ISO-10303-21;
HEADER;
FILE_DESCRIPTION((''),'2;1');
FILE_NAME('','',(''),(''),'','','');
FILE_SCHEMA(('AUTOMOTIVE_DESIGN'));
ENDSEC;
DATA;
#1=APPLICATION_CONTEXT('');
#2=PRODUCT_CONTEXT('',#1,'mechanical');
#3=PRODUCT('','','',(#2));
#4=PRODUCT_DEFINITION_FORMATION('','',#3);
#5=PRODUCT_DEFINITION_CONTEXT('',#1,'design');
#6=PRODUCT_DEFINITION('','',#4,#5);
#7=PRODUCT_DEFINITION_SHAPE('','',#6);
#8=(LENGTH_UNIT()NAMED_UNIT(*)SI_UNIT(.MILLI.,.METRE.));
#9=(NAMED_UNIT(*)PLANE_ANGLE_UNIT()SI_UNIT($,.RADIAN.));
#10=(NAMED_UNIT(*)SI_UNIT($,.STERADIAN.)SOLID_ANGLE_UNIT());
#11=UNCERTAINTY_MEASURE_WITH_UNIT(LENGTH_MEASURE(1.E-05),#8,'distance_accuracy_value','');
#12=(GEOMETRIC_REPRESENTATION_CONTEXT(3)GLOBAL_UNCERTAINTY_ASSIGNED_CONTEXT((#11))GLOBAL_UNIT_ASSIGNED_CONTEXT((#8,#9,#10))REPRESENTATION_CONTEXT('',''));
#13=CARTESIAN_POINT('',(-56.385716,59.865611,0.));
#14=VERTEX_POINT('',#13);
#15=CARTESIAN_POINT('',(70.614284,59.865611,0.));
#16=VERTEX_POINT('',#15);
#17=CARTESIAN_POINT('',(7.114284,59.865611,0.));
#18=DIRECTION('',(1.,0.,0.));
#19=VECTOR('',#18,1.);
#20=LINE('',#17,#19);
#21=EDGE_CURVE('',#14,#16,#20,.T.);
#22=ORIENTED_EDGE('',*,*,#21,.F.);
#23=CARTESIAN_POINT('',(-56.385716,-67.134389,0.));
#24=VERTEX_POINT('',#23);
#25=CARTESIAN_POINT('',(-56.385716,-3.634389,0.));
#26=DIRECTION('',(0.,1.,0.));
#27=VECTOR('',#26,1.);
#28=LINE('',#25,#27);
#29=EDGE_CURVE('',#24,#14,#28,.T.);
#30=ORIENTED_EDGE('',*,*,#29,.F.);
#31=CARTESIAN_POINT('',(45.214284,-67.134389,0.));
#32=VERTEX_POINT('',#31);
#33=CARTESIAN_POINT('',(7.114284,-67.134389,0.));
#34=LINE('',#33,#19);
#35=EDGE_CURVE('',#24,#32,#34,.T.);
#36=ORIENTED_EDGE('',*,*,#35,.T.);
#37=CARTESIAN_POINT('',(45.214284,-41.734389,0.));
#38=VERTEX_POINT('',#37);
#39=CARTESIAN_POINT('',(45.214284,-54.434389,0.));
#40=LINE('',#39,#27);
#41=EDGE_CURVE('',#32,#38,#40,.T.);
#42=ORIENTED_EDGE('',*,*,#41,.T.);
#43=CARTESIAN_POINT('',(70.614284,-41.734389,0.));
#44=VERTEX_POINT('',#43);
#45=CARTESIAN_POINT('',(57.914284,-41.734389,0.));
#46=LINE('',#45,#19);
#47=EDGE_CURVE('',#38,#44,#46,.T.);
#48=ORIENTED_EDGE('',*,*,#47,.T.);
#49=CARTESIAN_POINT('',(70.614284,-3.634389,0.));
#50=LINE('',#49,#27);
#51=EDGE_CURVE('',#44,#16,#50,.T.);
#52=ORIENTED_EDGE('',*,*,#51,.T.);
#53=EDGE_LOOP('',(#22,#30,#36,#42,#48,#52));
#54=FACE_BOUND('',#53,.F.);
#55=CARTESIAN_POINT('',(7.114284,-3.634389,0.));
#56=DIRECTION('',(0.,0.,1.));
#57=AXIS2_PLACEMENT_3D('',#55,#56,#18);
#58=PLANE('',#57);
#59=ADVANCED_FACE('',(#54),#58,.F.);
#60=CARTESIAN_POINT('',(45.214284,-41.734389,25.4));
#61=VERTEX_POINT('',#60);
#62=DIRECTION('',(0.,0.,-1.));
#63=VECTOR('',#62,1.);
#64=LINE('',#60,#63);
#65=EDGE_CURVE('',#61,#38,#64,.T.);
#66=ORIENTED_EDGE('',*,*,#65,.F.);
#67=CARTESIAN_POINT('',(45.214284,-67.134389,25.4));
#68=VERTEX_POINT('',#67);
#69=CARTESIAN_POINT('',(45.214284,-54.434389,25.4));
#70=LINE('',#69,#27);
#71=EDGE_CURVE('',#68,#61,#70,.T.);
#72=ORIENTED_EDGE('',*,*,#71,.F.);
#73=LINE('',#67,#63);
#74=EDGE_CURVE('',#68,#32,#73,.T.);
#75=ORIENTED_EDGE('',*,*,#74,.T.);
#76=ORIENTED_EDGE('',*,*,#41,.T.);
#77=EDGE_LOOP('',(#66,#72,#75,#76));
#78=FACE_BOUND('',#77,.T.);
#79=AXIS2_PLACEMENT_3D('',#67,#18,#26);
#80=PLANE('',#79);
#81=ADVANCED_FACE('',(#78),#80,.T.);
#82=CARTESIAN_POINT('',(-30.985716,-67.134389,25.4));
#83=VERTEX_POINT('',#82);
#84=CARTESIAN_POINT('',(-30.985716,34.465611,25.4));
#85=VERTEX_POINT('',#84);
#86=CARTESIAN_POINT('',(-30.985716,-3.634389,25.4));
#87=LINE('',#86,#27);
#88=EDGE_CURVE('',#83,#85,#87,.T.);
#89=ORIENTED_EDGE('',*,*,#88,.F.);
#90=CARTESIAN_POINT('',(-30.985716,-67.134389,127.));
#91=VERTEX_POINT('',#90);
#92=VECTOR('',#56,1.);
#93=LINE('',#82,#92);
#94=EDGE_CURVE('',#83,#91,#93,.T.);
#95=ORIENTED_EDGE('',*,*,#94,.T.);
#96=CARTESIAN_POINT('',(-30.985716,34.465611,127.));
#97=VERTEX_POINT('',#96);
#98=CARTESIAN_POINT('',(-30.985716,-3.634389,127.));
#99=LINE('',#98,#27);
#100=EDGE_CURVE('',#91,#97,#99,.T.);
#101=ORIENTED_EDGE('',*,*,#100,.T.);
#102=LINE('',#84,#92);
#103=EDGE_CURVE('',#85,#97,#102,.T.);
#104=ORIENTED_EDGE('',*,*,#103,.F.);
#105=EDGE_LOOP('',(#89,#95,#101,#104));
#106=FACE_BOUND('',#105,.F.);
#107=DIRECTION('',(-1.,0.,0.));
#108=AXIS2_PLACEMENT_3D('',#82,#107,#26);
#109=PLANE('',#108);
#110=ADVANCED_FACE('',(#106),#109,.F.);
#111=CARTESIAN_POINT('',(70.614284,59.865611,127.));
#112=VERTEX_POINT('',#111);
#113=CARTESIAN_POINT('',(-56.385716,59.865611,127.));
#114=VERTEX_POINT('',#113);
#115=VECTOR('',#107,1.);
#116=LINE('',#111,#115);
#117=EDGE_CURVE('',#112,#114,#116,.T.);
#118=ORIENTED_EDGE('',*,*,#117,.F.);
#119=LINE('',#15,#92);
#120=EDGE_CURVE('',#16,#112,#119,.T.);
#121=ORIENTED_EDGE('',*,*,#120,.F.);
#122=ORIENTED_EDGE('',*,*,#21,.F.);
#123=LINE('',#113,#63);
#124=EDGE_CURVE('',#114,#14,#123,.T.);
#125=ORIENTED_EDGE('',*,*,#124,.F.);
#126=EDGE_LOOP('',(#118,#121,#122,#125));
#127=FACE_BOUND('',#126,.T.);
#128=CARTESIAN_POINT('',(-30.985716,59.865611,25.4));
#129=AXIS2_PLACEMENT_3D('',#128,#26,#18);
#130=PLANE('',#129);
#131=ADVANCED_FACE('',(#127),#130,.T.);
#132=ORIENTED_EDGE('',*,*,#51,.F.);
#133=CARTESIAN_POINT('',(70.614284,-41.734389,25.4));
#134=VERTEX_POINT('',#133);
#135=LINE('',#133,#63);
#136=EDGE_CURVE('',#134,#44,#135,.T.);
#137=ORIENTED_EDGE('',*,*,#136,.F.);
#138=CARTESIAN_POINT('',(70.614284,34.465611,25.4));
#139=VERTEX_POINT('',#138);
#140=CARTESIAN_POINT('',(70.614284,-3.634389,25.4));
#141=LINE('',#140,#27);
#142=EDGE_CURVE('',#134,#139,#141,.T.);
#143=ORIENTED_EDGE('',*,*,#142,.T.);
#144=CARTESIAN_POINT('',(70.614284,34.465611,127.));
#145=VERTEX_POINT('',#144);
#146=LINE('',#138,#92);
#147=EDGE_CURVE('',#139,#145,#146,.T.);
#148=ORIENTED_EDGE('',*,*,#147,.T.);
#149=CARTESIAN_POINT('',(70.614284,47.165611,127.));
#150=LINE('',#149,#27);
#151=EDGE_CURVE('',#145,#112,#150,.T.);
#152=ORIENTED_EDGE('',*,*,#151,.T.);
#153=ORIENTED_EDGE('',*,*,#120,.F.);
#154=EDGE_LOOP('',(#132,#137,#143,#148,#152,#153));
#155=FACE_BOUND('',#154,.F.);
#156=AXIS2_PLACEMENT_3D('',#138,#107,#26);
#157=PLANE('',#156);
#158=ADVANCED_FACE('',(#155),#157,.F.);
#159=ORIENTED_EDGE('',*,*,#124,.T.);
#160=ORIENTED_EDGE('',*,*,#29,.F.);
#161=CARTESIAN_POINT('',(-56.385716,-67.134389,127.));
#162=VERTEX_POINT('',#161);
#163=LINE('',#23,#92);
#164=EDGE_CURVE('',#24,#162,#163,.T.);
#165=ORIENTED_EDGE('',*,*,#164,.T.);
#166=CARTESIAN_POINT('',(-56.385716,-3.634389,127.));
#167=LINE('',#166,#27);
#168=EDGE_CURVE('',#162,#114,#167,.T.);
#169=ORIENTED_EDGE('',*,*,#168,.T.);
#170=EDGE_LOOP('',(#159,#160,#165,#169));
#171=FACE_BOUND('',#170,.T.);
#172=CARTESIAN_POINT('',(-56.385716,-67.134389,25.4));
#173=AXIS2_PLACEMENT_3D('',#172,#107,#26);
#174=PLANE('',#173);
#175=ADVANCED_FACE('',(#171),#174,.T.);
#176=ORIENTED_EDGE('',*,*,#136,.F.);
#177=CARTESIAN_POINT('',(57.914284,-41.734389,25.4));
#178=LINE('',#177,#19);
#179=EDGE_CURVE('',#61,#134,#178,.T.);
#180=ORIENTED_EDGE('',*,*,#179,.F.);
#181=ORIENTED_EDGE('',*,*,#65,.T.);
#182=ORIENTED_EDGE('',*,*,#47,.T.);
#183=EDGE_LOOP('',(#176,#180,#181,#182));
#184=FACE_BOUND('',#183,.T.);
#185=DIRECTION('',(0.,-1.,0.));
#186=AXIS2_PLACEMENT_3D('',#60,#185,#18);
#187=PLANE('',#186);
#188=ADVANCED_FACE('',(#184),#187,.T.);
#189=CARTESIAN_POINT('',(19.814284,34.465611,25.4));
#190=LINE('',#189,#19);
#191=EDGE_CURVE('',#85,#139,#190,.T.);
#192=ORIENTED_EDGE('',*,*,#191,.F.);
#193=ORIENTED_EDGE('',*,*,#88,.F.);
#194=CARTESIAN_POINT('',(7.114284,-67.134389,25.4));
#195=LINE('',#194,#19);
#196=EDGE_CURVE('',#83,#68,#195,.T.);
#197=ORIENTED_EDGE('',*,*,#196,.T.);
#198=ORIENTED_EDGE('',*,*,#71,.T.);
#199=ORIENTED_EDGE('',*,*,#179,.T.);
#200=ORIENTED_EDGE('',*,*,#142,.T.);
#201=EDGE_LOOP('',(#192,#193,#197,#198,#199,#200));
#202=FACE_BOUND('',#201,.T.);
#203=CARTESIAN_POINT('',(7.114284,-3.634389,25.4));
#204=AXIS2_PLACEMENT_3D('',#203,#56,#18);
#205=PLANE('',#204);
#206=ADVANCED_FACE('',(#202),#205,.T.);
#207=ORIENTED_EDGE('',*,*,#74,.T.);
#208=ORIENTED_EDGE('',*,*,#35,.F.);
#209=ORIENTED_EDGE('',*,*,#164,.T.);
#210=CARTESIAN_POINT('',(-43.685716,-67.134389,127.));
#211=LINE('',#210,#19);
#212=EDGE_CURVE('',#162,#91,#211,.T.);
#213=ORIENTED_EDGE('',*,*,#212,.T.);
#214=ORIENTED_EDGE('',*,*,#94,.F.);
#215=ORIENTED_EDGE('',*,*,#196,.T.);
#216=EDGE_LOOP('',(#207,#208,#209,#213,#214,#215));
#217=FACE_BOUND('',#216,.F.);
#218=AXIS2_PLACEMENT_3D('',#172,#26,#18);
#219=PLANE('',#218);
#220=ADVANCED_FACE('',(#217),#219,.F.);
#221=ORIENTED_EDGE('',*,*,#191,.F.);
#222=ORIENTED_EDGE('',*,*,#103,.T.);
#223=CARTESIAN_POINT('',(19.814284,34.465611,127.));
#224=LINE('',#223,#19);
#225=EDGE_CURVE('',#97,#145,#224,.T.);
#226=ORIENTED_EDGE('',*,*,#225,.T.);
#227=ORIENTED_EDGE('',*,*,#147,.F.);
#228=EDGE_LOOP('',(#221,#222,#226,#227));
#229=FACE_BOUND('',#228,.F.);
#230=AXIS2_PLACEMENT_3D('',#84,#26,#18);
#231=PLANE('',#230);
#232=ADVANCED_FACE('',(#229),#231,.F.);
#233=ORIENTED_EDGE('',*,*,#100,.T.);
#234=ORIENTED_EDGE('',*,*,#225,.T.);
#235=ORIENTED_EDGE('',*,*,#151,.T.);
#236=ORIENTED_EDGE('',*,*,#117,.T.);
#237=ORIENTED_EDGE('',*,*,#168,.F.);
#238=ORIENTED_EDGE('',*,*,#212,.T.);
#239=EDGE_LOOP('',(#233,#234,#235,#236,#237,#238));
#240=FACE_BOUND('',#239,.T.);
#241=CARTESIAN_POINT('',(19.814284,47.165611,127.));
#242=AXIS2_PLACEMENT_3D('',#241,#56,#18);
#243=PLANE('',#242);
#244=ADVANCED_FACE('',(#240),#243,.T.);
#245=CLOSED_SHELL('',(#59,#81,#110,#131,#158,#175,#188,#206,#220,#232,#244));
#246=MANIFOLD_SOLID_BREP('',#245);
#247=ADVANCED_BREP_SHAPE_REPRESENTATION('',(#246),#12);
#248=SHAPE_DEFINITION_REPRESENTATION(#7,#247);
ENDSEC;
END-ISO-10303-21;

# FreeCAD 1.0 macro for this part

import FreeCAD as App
import Part
import Sketcher

V = App.Vector
Q = App.Units.Quantity


def add_polygon(sketch, points):
    """Adds a closed chain of lines whose ends are joined by coincident constraints."""
    first, n = sketch.GeometryCount, len(points)
    for a, b in zip(points, points[1:] + points[:1]):
        sketch.addGeometry(Part.LineSegment(App.Vector(*a, 0), App.Vector(*b, 0)), False)
    for i in range(n):
        sketch.addConstraint(Sketcher.Constraint("Coincident", first + i, 2, first + (i + 1) % n, 1))

doc = App.newDocument("Part")
body = doc.addObject("PartDesign::Body", "Body")

sketch1 = body.newObject("Sketcher::SketchObject", "Sketch")
sketch1.AttachmentSupport = (doc.getObject("XY_Plane"), [""])
sketch1.MapMode = "FlatFace"
add_polygon(sketch1, [(-56, 60), (-56, -67), (71, -67), (71, 60)])
sketch1.addConstraint(Sketcher.Constraint("Vertical", 0))
sketch1.addConstraint(Sketcher.Constraint("Horizontal", 1))
sketch1.addConstraint(Sketcher.Constraint("Vertical", 2))
sketch1.addConstraint(Sketcher.Constraint("Horizontal", 3))
sketch1.addConstraint(Sketcher.Constraint("Equal", 3, 0))
sketch1.addConstraint(Sketcher.Constraint("DistanceX", 1, 1, 1, 2, Q("5 in")))
sketch1.addConstraint(Sketcher.Constraint("DistanceY", 0, 2, -1, 1, 67.134389))
sketch1.addConstraint(Sketcher.Constraint("DistanceX", 0, 2, -1, 1, 56.385716))
pad1 = body.newObject("PartDesign::Pad", "Pad")
pad1.Profile = sketch1
pad1.Length = Q("1 in")

sketch2 = body.newObject("Sketcher::SketchObject", "Sketch001")
sketch2.AttachmentSupport = (doc.getObject("XY_Plane"), [""])
sketch2.MapMode = "FlatFace"
sketch2.AttachmentOffset = App.Placement(V(0, 0, 1 * 25.4), App.Rotation())
add_polygon(sketch2, [(-56, 60), (-56, -67), (-31, -67), (-31, 60)])
sketch2.addConstraint(Sketcher.Constraint("Vertical", 0))
sketch2.addConstraint(Sketcher.Constraint("Horizontal", 1))
sketch2.addConstraint(Sketcher.Constraint("Vertical", 2))
sketch2.addConstraint(Sketcher.Constraint("Horizontal", 3))
sketch2.addConstraint(Sketcher.Constraint("DistanceX", 1, 1, 1, 2, Q("1 in")))
sketch2.addConstraint(Sketcher.Constraint("DistanceY", 0, 2, 0, 1, Q("5 in")))
sketch2.addConstraint(Sketcher.Constraint("DistanceY", 0, 2, -1, 1, 67.134389))
sketch2.addConstraint(Sketcher.Constraint("DistanceX", 0, 2, -1, 1, 56.385716))
pad2 = body.newObject("PartDesign::Pad", "Pad001")
pad2.Profile = sketch2
pad2.Length = Q("4 in")

sketch3 = body.newObject("Sketcher::SketchObject", "Sketch002")
sketch3.AttachmentSupport = (doc.getObject("XY_Plane"), [""])
sketch3.MapMode = "FlatFace"
sketch3.AttachmentOffset = App.Placement(V(0, 0, 1 * 25.4), App.Rotation())
add_polygon(sketch3, [(-31, 60), (-31, 34), (71, 34), (71, 60)])
sketch3.addConstraint(Sketcher.Constraint("Vertical", 0))
sketch3.addConstraint(Sketcher.Constraint("Horizontal", 1))
sketch3.addConstraint(Sketcher.Constraint("Vertical", 2))
sketch3.addConstraint(Sketcher.Constraint("Horizontal", 3))
sketch3.addConstraint(Sketcher.Constraint("DistanceX", 1, 1, 1, 2, Q("4 in")))
sketch3.addConstraint(Sketcher.Constraint("DistanceY", 0, 2, 0, 1, Q("1 in")))
sketch3.addConstraint(Sketcher.Constraint("DistanceY", -1, 1, 0, 2, 34.465611))
sketch3.addConstraint(Sketcher.Constraint("DistanceX", 0, 2, -1, 1, 30.985716))
pad3 = body.newObject("PartDesign::Pad", "Pad002")
pad3.Profile = sketch3
pad3.Length = Q("4 in")

sketch4 = body.newObject("Sketcher::SketchObject", "Sketch003")
sketch4.AttachmentSupport = (doc.getObject("XY_Plane"), [""])
sketch4.MapMode = "FlatFace"
sketch4.AttachmentOffset = App.Placement(V(0, 0, 1 * 25.4), App.Rotation())
add_polygon(sketch4, [(45, -42), (45, -67), (71, -67), (71, -42)])
sketch4.addConstraint(Sketcher.Constraint("Vertical", 0))
sketch4.addConstraint(Sketcher.Constraint("Horizontal", 1))
sketch4.addConstraint(Sketcher.Constraint("Vertical", 2))
sketch4.addConstraint(Sketcher.Constraint("Horizontal", 3))
sketch4.addConstraint(Sketcher.Constraint("Equal", 3, 0))
sketch4.addConstraint(Sketcher.Constraint("DistanceX", 1, 1, 1, 2, Q("1 in")))
sketch4.addConstraint(Sketcher.Constraint("DistanceY", 0, 2, -1, 1, 67.134389))
sketch4.addConstraint(Sketcher.Constraint("DistanceX", -1, 1, 0, 2, 45.214284))
pocket1 = body.newObject("PartDesign::Pocket", "Pocket")
pocket1.Profile = sketch4
pocket1.Length = Q("1 in")

doc.recompute()
